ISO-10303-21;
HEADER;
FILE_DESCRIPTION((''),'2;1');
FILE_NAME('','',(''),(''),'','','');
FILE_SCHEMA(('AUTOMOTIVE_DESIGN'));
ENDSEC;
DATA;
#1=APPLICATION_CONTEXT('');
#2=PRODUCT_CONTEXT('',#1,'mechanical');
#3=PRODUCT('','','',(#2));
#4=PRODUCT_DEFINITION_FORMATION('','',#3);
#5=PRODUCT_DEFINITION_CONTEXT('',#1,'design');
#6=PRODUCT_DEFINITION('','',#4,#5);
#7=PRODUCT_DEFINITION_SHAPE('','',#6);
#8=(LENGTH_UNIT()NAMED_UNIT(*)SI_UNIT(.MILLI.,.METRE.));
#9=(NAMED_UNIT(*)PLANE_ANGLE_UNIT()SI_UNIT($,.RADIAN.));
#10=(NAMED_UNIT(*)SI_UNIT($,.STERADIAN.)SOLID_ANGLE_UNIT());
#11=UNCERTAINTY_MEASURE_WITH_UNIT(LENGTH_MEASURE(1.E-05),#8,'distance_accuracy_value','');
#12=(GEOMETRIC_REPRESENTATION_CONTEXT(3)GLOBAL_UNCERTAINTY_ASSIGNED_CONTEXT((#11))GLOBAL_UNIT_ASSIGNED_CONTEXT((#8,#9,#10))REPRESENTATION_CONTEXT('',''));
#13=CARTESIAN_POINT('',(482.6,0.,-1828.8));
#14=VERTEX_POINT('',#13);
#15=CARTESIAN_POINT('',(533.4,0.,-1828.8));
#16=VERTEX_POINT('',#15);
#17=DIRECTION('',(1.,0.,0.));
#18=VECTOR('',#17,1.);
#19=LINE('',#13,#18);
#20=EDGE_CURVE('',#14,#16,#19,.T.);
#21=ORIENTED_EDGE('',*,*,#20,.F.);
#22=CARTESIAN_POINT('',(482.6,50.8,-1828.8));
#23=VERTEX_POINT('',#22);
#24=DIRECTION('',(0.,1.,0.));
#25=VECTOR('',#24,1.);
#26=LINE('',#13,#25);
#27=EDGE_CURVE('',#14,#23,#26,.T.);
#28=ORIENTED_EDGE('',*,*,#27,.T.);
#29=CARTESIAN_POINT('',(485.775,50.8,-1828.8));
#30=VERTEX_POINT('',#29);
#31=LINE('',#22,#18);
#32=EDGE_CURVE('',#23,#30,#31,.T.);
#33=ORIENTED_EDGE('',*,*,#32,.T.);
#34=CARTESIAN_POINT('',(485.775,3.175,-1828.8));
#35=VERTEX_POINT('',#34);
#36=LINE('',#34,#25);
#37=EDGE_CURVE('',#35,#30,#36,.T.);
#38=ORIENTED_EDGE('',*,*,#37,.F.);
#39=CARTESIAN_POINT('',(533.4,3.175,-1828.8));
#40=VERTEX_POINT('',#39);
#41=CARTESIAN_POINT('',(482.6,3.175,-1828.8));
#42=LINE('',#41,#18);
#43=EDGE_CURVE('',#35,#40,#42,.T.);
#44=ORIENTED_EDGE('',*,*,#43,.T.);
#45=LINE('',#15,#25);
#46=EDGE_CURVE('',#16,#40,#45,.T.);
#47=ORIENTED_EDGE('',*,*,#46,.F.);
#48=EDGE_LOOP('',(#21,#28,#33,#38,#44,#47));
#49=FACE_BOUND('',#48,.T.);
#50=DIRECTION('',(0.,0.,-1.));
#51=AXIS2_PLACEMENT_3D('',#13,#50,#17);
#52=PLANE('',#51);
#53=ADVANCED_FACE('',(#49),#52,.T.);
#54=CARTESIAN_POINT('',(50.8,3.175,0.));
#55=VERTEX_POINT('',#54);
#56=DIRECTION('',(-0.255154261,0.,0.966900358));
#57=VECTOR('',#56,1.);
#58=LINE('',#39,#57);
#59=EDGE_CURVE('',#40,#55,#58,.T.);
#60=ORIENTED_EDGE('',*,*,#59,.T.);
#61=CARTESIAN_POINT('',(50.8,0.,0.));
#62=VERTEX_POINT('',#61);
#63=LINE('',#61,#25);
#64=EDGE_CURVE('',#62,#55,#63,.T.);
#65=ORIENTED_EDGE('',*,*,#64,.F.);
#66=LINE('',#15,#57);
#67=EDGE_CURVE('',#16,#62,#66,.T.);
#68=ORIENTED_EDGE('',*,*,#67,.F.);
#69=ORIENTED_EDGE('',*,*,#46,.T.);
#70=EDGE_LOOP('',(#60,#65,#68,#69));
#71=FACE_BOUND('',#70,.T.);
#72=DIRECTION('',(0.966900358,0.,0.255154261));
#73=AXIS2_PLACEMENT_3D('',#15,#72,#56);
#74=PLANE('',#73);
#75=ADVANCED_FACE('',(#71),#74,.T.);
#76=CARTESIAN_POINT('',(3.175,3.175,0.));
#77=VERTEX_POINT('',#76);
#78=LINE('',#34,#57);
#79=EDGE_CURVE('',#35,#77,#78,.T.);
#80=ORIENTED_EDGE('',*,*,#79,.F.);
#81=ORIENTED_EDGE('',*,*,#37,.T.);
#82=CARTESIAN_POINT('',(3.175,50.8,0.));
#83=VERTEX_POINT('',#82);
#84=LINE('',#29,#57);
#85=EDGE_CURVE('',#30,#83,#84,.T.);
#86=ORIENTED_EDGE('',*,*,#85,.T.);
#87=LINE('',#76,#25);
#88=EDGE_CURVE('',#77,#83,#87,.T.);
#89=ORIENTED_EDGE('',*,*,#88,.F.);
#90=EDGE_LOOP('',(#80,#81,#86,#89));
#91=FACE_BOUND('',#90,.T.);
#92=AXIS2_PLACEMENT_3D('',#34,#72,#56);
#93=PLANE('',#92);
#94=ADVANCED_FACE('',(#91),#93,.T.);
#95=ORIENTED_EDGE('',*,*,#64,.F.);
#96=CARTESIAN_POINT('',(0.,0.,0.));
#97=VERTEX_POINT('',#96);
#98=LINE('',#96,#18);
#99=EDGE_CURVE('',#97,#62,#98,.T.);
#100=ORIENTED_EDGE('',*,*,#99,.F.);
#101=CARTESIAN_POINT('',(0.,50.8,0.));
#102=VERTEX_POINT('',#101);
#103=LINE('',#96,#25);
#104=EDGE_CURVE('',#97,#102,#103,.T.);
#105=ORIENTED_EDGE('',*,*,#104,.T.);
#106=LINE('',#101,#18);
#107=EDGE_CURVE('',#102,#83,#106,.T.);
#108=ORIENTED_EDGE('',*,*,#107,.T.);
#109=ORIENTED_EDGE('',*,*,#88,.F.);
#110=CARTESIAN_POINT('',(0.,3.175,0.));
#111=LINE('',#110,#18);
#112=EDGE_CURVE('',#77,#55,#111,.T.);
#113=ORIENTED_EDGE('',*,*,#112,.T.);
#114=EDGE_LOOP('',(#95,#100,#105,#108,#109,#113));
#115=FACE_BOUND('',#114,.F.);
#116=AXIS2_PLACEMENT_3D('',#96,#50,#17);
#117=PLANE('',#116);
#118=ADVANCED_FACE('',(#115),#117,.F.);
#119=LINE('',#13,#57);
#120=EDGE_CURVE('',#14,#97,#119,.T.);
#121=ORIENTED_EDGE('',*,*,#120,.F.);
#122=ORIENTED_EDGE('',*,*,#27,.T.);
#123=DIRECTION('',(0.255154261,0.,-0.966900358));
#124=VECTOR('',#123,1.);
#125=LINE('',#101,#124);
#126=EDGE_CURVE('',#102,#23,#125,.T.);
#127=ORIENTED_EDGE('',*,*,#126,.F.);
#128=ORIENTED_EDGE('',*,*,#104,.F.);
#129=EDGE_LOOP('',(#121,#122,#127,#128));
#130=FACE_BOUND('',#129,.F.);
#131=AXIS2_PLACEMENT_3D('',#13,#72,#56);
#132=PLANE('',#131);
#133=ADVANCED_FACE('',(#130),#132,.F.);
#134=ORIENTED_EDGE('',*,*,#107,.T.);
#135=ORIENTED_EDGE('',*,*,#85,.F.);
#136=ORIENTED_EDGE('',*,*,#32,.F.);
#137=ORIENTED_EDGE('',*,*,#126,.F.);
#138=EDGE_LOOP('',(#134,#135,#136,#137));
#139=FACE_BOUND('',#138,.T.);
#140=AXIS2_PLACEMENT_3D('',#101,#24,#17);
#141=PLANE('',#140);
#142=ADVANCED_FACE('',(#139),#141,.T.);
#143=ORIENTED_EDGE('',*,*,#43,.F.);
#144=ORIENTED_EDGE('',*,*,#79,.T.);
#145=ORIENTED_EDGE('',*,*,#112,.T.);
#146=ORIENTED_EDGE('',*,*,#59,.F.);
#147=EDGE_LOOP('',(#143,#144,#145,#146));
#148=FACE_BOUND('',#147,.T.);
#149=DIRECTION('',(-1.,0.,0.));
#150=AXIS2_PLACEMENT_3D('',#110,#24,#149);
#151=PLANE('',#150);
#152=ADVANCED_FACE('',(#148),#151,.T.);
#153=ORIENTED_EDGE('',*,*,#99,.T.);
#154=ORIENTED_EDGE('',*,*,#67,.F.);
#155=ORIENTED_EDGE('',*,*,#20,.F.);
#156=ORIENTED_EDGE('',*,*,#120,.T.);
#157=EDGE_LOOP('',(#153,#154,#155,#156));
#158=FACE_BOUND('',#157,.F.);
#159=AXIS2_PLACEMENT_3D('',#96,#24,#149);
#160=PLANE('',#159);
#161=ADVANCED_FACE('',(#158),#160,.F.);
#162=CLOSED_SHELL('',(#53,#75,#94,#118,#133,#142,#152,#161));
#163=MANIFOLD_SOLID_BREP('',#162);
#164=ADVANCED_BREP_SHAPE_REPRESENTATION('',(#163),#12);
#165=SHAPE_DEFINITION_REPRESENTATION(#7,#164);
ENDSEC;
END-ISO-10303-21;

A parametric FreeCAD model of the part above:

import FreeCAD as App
import Part
import Sketcher

V = App.Vector
Q = App.Units.Quantity


def add_polygon(sketch, points):
    """Adds a closed chain of lines whose ends are joined by coincident constraints."""
    first, n = sketch.GeometryCount, len(points)
    for a, b in zip(points, points[1:] + points[:1]):
        sketch.addGeometry(Part.LineSegment(App.Vector(*a, 0), App.Vector(*b, 0)), False)
    for i in range(n):
        sketch.addConstraint(Sketcher.Constraint("Coincident", first + i, 2, first + (i + 1) % n, 1))

doc = App.newDocument("Part")
body = doc.addObject("PartDesign::Body", "Body")

sketch1 = doc.addObject("Sketcher::SketchObject", "Sketch")
body.addObject(sketch1)
sketch1.AttachmentSupport = (doc.XZ_Plane, [""])
sketch1.MapMode = "FlatFace"
add_polygon(sketch1, [(533, -1829), (483, -1829), (0, 0), (51, 0)])
sketch1.addConstraint(Sketcher.Constraint("Horizontal", 0))
sketch1.addConstraint(Sketcher.Constraint("Horizontal", 2))
sketch1.addConstraint(Sketcher.Constraint("Coincident", 1, 2, -1, 1))
sketch1.addConstraint(Sketcher.Constraint("Parallel", 1, 3))
sketch1.addConstraint(Sketcher.Constraint("DistanceX", 0, 2, 0, 1, Q("2 in")))
sketch1.addConstraint(Sketcher.Constraint("DistanceX", -1, 1, 0, 2, Q("19 in")))
sketch1.addConstraint(Sketcher.Constraint("DistanceY", 0, 2, -1, 1, Q("72 in")))
pad1 = doc.addObject("PartDesign::Pad", "Pad")
body.addObject(pad1)
pad1.Profile = sketch1
pad1.Length = Q("0.125 in")
pad1.Reversed = True

sketch2 = doc.addObject("Sketcher::SketchObject", "Sketch001")
body.addObject(sketch2)
sketch2.AttachmentSupport = (doc.XZ_Plane, [""])
sketch2.MapMode = "FlatFace"
sketch2.AttachmentOffset = App.Placement(V(0, 0, -0.125 * 25.4), App.Rotation())
add_polygon(sketch2, [(482.6, -1828.8), (0, 0), (3.2, 0), (485.8, -1828.8)])
sketch2.addConstraint(Sketcher.Constraint("Horizontal", 1))
sketch2.addConstraint(Sketcher.Constraint("Horizontal", 3))
sketch2.addConstraint(Sketcher.Constraint("Coincident", 0, 2, -1, 1))
sketch2.addConstraint(Sketcher.Constraint("Parallel", 0, 2))
sketch2.addConstraint(Sketcher.Constraint("DistanceX", 1, 1, 1, 2, Q("0.125 in")))
sketch2.addConstraint(Sketcher.Constraint("DistanceY", 2, 2, -1, 1, Q("72 in")))
sketch2.addConstraint(Sketcher.Constraint("DistanceX", -1, 1, 3, 2, Q("19 in")))
pad2 = doc.addObject("PartDesign::Pad", "Pad001")
body.addObject(pad2)
pad2.Profile = sketch2
pad2.Length = Q("1.875 in")
pad2.Reversed = True

doc.recompute()
